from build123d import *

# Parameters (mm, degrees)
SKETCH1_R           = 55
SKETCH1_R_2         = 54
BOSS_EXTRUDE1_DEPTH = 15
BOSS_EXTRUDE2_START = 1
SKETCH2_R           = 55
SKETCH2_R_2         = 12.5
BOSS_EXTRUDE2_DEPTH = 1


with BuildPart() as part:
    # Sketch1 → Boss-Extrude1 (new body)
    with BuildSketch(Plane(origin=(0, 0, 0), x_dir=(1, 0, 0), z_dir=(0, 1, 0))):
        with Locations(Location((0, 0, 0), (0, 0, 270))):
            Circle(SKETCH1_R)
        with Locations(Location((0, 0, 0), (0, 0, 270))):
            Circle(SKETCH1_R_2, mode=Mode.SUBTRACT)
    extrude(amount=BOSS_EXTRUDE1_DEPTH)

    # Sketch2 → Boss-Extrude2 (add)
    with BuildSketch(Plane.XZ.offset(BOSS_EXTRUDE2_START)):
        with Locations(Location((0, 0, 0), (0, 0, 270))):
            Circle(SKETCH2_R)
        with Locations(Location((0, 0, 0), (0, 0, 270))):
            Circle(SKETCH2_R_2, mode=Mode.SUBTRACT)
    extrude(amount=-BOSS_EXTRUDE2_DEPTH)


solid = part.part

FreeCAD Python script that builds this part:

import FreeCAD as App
import Part
import Sketcher

doc = App.newDocument("Part")
body = doc.addObject("PartDesign::Body", "Body")

# Sketch on XZ plane
sketch1 = body.newObject("Sketcher::SketchObject", "Sketch")
sketch1.AttachmentSupport = (doc.getObject("XZ_Plane"), [""])
sketch1.MapMode = "FlatFace"
sketch1.addGeometry(Part.Circle(App.Vector(0, 0, 0), App.Vector(0, 0, 1), 55), False)
sketch1.addGeometry(Part.Circle(App.Vector(0, 0, 0), App.Vector(0, 0, 1), 54), False)
sketch1.addConstraint(Sketcher.Constraint("Coincident", 0, 3, -1, 1))
sketch1.addConstraint(Sketcher.Constraint("Coincident", 1, 3, -1, 1))
sketch1.addConstraint(Sketcher.Constraint("Diameter", 0, 110.0))
sketch1.addConstraint(Sketcher.Constraint("Diameter", 1, 108.0))
pad1 = body.newObject("PartDesign::Pad", "Pad")
pad1.Profile = sketch1
pad1.Length = 15
pad1.Reversed = True

# Sketch on XZ plane
sketch2 = body.newObject("Sketcher::SketchObject", "Sketch001")
sketch2.AttachmentSupport = (doc.getObject("XZ_Plane"), [""])
sketch2.MapMode = "FlatFace"
sketch2.AttachmentOffset = App.Placement(App.Vector(0, 0, 1), App.Rotation())
sketch2.addGeometry(Part.Circle(App.Vector(0, 0, 0), App.Vector(0, 0, 1), 55), False)
sketch2.addGeometry(Part.Circle(App.Vector(0, 0, 0), App.Vector(0, 0, 1), 12), False)
sketch2.addConstraint(Sketcher.Constraint("Coincident", 0, 3, -1, 1))
sketch2.addConstraint(Sketcher.Constraint("Coincident", 1, 3, -1, 1))
sketch2.addConstraint(Sketcher.Constraint("Diameter", 0, 110.0))
sketch2.addConstraint(Sketcher.Constraint("Diameter", 1, 25.0))
pad2 = body.newObject("PartDesign::Pad", "Pad001")
pad2.Profile = sketch2
pad2.Length = 1
pad2.Reversed = True

doc.recompute()
